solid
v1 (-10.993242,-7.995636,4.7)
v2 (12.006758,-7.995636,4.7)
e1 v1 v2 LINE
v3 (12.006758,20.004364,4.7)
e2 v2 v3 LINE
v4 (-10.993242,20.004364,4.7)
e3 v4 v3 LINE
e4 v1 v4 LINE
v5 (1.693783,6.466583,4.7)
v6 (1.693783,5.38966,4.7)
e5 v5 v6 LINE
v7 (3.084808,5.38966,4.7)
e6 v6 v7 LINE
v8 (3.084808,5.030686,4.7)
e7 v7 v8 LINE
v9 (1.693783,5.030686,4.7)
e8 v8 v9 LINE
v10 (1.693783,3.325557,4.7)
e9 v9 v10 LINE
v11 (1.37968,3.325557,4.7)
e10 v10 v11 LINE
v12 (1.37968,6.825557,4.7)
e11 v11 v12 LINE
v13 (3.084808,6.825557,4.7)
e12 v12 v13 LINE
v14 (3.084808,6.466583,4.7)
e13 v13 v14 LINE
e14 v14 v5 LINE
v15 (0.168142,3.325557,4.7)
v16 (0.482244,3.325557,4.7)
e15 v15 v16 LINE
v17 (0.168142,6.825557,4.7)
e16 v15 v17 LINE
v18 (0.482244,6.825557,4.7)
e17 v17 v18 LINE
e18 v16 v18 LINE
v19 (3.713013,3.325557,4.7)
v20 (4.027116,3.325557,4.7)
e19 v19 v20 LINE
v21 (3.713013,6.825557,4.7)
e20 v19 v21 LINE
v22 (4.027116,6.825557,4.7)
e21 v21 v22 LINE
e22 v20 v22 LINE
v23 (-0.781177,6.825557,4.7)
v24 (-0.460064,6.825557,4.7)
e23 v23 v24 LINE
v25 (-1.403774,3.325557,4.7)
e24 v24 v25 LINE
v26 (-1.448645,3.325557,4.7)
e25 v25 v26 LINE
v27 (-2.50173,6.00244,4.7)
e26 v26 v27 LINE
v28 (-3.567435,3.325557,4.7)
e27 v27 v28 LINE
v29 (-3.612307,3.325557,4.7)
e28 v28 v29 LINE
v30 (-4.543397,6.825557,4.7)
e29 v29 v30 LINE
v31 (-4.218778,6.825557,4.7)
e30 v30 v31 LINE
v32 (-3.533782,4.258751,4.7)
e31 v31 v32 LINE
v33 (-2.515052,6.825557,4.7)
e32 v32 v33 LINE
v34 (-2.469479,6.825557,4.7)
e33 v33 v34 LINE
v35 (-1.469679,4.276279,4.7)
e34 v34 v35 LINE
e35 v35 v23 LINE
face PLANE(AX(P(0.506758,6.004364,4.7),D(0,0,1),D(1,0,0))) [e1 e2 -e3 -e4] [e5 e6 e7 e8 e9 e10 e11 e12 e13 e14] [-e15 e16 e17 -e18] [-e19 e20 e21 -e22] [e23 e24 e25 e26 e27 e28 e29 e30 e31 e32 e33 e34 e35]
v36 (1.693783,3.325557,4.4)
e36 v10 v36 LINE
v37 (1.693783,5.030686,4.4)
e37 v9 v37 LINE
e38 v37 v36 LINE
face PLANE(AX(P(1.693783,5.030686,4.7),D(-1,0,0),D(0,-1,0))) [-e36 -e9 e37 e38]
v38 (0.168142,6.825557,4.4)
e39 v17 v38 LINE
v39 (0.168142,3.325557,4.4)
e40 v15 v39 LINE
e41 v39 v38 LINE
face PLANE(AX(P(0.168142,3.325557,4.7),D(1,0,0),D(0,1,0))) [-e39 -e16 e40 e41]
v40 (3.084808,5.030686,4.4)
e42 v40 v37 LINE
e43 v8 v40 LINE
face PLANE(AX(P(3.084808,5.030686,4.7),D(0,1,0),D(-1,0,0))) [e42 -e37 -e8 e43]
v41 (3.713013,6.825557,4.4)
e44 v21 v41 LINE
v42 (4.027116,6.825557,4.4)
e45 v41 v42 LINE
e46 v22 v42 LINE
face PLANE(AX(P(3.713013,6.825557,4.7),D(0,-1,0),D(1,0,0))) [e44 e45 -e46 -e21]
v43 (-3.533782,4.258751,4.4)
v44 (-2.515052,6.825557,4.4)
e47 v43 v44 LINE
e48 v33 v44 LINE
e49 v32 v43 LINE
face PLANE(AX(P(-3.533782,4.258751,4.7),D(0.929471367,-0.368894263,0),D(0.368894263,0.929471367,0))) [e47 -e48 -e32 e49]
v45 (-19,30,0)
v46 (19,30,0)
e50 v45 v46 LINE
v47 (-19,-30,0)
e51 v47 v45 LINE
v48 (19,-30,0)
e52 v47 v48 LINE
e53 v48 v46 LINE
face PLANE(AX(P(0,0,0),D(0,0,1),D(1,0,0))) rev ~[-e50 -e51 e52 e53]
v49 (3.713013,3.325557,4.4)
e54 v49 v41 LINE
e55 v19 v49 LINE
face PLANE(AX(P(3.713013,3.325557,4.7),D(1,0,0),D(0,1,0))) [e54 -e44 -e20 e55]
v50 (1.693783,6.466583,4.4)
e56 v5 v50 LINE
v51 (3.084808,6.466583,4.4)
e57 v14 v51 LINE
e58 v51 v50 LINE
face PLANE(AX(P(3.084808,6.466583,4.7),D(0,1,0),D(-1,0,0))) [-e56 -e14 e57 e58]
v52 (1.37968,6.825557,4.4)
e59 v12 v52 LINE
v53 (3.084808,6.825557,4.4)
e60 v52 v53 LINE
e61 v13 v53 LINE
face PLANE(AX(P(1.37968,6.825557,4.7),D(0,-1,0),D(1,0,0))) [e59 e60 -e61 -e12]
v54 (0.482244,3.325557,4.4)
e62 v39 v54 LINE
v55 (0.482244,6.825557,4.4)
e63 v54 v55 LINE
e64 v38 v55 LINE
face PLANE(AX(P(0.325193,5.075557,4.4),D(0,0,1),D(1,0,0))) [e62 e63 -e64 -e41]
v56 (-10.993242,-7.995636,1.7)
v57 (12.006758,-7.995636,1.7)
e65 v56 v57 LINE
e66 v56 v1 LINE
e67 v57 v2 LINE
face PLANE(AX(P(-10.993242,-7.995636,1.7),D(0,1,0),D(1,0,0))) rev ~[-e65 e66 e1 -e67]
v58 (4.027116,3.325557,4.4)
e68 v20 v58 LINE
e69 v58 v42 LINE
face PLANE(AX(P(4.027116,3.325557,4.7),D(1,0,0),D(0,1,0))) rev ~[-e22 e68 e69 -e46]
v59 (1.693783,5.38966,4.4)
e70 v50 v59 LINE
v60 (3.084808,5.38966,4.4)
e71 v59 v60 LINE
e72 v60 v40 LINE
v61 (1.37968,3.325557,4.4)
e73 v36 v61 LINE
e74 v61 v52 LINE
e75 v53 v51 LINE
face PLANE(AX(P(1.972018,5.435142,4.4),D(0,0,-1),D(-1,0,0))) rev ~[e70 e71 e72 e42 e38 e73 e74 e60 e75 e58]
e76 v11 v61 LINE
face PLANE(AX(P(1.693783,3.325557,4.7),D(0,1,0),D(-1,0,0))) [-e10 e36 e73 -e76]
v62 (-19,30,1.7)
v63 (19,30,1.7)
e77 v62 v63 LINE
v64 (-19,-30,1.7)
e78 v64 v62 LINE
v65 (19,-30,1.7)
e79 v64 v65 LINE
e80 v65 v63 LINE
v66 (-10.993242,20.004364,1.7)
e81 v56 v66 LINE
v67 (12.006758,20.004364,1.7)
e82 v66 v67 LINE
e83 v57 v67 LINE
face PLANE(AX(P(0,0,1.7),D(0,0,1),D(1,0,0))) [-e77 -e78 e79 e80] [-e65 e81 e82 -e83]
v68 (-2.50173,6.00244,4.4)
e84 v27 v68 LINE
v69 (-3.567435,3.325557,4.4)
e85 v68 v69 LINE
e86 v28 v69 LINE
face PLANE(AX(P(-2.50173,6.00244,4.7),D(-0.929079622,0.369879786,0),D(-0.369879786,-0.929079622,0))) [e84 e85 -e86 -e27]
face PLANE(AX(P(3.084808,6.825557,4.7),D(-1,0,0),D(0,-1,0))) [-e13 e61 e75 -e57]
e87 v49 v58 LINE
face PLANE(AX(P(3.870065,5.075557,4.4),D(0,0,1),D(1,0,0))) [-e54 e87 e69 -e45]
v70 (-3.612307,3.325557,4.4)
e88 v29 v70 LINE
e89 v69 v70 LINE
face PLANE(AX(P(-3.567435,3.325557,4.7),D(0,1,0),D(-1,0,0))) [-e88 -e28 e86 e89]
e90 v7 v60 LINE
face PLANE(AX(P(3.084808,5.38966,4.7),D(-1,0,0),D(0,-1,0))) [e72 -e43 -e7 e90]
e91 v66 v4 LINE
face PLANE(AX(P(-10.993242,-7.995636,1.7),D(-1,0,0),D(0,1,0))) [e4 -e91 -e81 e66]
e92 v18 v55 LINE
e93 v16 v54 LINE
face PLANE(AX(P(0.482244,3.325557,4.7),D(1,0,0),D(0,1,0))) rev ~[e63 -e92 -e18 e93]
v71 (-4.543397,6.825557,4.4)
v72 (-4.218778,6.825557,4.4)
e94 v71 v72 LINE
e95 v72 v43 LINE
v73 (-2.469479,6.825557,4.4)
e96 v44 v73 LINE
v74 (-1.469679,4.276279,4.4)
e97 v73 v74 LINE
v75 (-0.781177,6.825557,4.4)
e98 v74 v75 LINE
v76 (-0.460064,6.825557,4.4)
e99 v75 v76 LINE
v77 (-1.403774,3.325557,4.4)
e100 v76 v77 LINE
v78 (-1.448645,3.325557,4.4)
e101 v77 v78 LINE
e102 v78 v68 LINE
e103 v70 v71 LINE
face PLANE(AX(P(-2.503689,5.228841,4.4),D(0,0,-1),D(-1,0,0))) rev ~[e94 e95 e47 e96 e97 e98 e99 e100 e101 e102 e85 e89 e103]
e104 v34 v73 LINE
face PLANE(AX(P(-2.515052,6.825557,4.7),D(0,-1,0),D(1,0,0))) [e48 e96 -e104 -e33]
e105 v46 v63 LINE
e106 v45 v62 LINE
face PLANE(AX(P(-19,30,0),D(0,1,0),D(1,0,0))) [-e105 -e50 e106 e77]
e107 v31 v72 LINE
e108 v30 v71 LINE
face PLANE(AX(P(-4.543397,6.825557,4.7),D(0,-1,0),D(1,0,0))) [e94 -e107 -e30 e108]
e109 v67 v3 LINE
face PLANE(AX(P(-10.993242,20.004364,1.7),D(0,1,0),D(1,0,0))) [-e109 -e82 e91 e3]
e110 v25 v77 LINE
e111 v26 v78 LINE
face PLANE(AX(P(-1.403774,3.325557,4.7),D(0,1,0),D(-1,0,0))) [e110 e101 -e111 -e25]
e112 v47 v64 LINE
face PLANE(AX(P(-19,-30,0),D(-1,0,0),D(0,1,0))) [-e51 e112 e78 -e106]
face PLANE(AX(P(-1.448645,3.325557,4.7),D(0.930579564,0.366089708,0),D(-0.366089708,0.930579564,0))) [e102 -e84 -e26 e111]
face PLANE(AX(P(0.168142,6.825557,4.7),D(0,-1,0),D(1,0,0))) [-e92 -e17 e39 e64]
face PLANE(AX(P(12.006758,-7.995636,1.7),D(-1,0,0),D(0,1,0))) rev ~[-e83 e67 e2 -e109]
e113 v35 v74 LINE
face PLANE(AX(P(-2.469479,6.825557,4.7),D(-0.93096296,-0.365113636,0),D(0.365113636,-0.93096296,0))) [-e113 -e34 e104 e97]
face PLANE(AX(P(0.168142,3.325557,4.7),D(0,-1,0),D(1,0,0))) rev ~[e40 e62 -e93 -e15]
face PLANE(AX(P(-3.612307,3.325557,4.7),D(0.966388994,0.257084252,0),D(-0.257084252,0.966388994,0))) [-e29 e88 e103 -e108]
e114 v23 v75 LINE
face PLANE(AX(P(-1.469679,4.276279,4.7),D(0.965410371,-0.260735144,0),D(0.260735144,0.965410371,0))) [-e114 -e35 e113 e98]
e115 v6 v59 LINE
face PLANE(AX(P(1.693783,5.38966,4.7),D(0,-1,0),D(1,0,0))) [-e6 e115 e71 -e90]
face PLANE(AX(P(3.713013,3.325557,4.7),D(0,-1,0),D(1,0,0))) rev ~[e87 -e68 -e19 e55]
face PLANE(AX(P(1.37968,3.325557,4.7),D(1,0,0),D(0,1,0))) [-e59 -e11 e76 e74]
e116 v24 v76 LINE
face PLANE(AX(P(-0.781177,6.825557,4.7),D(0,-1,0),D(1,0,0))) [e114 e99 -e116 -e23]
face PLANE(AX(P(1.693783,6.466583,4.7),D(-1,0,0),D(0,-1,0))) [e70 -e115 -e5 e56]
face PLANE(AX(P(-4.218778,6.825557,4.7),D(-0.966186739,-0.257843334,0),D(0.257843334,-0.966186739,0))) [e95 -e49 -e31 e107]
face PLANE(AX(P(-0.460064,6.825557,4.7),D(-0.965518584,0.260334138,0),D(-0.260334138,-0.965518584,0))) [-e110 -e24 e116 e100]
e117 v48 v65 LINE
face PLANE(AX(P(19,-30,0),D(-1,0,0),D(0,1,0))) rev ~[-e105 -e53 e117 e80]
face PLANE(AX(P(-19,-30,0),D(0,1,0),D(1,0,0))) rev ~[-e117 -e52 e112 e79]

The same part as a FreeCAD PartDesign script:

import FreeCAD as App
import Part
import Sketcher
Q = App.Units.Quantity

doc = App.newDocument("Part")
body = doc.addObject("PartDesign::Body", "Body")

# Sketch on XY plane
sketch1 = doc.addObject("Sketcher::SketchObject", "Sketch")
body.addObject(sketch1)
sketch1.AttachmentSupport = (doc.XY_Plane, [""])
sketch1.MapMode = "FlatFace"
sketch1.addGeometry(Part.LineSegment(App.Vector(-19, 30, 0), App.Vector(-19, -30, 0)), False)
sketch1.addGeometry(Part.LineSegment(App.Vector(-19, -30, 0), App.Vector(19, -30, 0)), False)
sketch1.addGeometry(Part.LineSegment(App.Vector(19, -30, 0), App.Vector(19, 30, 0)), False)
sketch1.addGeometry(Part.LineSegment(App.Vector(19, 30, 0), App.Vector(-19, 30, 0)), False)
sketch1.addConstraint(Sketcher.Constraint("Coincident", 0, 2, 1, 1))
sketch1.addConstraint(Sketcher.Constraint("Coincident", 1, 2, 2, 1))
sketch1.addConstraint(Sketcher.Constraint("Coincident", 2, 2, 3, 1))
sketch1.addConstraint(Sketcher.Constraint("Coincident", 3, 2, 0, 1))
sketch1.addConstraint(Sketcher.Constraint("Vertical", 0))
sketch1.addConstraint(Sketcher.Constraint("Horizontal", 1))
sketch1.addConstraint(Sketcher.Constraint("Vertical", 2))
sketch1.addConstraint(Sketcher.Constraint("Horizontal", 3))
sketch1.addConstraint(Sketcher.Constraint("Symmetric", 0, 2, 2, 2, -1, 1))
sketch1.addConstraint(Sketcher.Constraint("DistanceX", 1, 1, 1, 2, Q("38 mm")))
sketch1.addConstraint(Sketcher.Constraint("DistanceY", 0, 2, 0, 1, Q("60 mm")))
pad1 = doc.addObject("PartDesign::Pad", "Pad")
body.addObject(pad1)
pad1.Profile = sketch1
pad1.Length = 1.7

# Sketch on XY plane
sketch2 = doc.addObject("Sketcher::SketchObject", "Sketch001")
body.addObject(sketch2)
sketch2.AttachmentSupport = (doc.XY_Plane, [""])
sketch2.MapMode = "FlatFace"
sketch2.AttachmentOffset = App.Placement(App.Vector(0, 0, 1.7), App.Rotation())
sketch2.addGeometry(Part.LineSegment(App.Vector(-11, 20, 0), App.Vector(-11, -8, 0)), False)
sketch2.addGeometry(Part.LineSegment(App.Vector(-11, -8, 0), App.Vector(12, -8, 0)), False)
sketch2.addGeometry(Part.LineSegment(App.Vector(12, -8, 0), App.Vector(12, 20, 0)), False)
sketch2.addGeometry(Part.LineSegment(App.Vector(12, 20, 0), App.Vector(-11, 20, 0)), False)
sketch2.addConstraint(Sketcher.Constraint("Coincident", 0, 2, 1, 1))
sketch2.addConstraint(Sketcher.Constraint("Coincident", 1, 2, 2, 1))
sketch2.addConstraint(Sketcher.Constraint("Coincident", 2, 2, 3, 1))
sketch2.addConstraint(Sketcher.Constraint("Coincident", 3, 2, 0, 1))
sketch2.addConstraint(Sketcher.Constraint("Vertical", 0))
sketch2.addConstraint(Sketcher.Constraint("Horizontal", 1))
sketch2.addConstraint(Sketcher.Constraint("Vertical", 2))
sketch2.addConstraint(Sketcher.Constraint("Horizontal", 3))
sketch2.addConstraint(Sketcher.Constraint("DistanceX", 1, 1, 1, 2, Q("23 mm")))
sketch2.addConstraint(Sketcher.Constraint("DistanceY", 0, 2, 0, 1, Q("28 mm")))
sketch2.addConstraint(Sketcher.Constraint("DistanceX", 0, 2, -1, 1, Q("10.993242 mm")))
sketch2.addConstraint(Sketcher.Constraint("DistanceY", 0, 2, -1, 1, Q("7.995636 mm")))
pad2 = doc.addObject("PartDesign::Pad", "Pad001")
body.addObject(pad2)
pad2.Profile = sketch2
pad2.Length = 3

# Sketch on XY plane
sketch3 = doc.addObject("Sketcher::SketchObject", "Sketch002")
body.addObject(sketch3)
sketch3.AttachmentSupport = (doc.XY_Plane, [""])
sketch3.MapMode = "FlatFace"
sketch3.AttachmentOffset = App.Placement(App.Vector(0, 0, 4.7), App.Rotation())
sketch3.addGeometry(Part.LineSegment(App.Vector(-4.219, 6.826, 0), App.Vector(-4.543, 6.826, 0)), False)
sketch3.addGeometry(Part.LineSegment(App.Vector(-4.543, 6.826, 0), App.Vector(-3.612, 3.326, 0)), False)
sketch3.addGeometry(Part.LineSegment(App.Vector(-3.612, 3.326, 0), App.Vector(-3.567, 3.326, 0)), False)
sketch3.addGeometry(Part.LineSegment(App.Vector(-3.567, 3.326, 0), App.Vector(-2.502, 6.002, 0)), False)
sketch3.addGeometry(Part.LineSegment(App.Vector(-2.502, 6.002, 0), App.Vector(-1.449, 3.326, 0)), False)
sketch3.addGeometry(Part.LineSegment(App.Vector(-1.449, 3.326, 0), App.Vector(-1.404, 3.326, 0)), False)
sketch3.addGeometry(Part.LineSegment(App.Vector(-1.404, 3.326, 0), App.Vector(-0.46, 6.826, 0)), False)
sketch3.addGeometry(Part.LineSegment(App.Vector(-0.46, 6.826, 0), App.Vector(-0.781, 6.826, 0)), False)
sketch3.addGeometry(Part.LineSegment(App.Vector(-0.781, 6.826, 0), App.Vector(-1.47, 4.276, 0)), False)
sketch3.addGeometry(Part.LineSegment(App.Vector(-1.47, 4.276, 0), App.Vector(-2.469, 6.826, 0)), False)
sketch3.addGeometry(Part.LineSegment(App.Vector(-2.469, 6.826, 0), App.Vector(-2.515, 6.826, 0)), False)
sketch3.addGeometry(Part.LineSegment(App.Vector(-2.515, 6.826, 0), App.Vector(-3.534, 4.259, 0)), False)
sketch3.addGeometry(Part.LineSegment(App.Vector(-3.534, 4.259, 0), App.Vector(-4.219, 6.826, 0)), False)
sketch3.addGeometry(Part.LineSegment(App.Vector(0.168, 6.826, 0), App.Vector(0.168, 3.326, 0)), False)
sketch3.addGeometry(Part.LineSegment(App.Vector(0.168, 3.326, 0), App.Vector(0.482, 3.326, 0)), False)
sketch3.addGeometry(Part.LineSegment(App.Vector(0.482, 3.326, 0), App.Vector(0.482, 6.826, 0)), False)
sketch3.addGeometry(Part.LineSegment(App.Vector(0.482, 6.826, 0), App.Vector(0.168, 6.826, 0)), False)
sketch3.addGeometry(Part.LineSegment(App.Vector(3.085, 6.826, 0), App.Vector(1.38, 6.826, 0)), False)
sketch3.addGeometry(Part.LineSegment(App.Vector(1.38, 6.826, 0), App.Vector(1.38, 3.326, 0)), False)
sketch3.addGeometry(Part.LineSegment(App.Vector(1.38, 3.326, 0), App.Vector(1.694, 3.326, 0)), False)
sketch3.addGeometry(Part.LineSegment(App.Vector(1.694, 3.326, 0), App.Vector(1.694, 5.031, 0)), False)
sketch3.addGeometry(Part.LineSegment(App.Vector(1.694, 5.031, 0), App.Vector(3.085, 5.031, 0)), False)
sketch3.addGeometry(Part.LineSegment(App.Vector(3.085, 5.031, 0), App.Vector(3.085, 5.39, 0)), False)
sketch3.addGeometry(Part.LineSegment(App.Vector(3.085, 5.39, 0), App.Vector(1.694, 5.39, 0)), False)
sketch3.addGeometry(Part.LineSegment(App.Vector(1.694, 5.39, 0), App.Vector(1.694, 6.467, 0)), False)
sketch3.addGeometry(Part.LineSegment(App.Vector(1.694, 6.467, 0), App.Vector(3.085, 6.467, 0)), False)
sketch3.addGeometry(Part.LineSegment(App.Vector(3.085, 6.467, 0), App.Vector(3.085, 6.826, 0)), False)
sketch3.addGeometry(Part.LineSegment(App.Vector(3.713, 6.826, 0), App.Vector(3.713, 3.326, 0)), False)
sketch3.addGeometry(Part.LineSegment(App.Vector(3.713, 3.326, 0), App.Vector(4.027, 3.326, 0)), False)
sketch3.addGeometry(Part.LineSegment(App.Vector(4.027, 3.326, 0), App.Vector(4.027, 6.826, 0)), False)
sketch3.addGeometry(Part.LineSegment(App.Vector(4.027, 6.826, 0), App.Vector(3.713, 6.826, 0)), False)
sketch3.addConstraint(Sketcher.Constraint("Coincident", 0, 2, 1, 1))
sketch3.addConstraint(Sketcher.Constraint("Coincident", 1, 2, 2, 1))
sketch3.addConstraint(Sketcher.Constraint("Coincident", 2, 2, 3, 1))
sketch3.addConstraint(Sketcher.Constraint("Coincident", 3, 2, 4, 1))
sketch3.addConstraint(Sketcher.Constraint("Coincident", 4, 2, 5, 1))
sketch3.addConstraint(Sketcher.Constraint("Coincident", 5, 2, 6, 1))
sketch3.addConstraint(Sketcher.Constraint("Coincident", 6, 2, 7, 1))
sketch3.addConstraint(Sketcher.Constraint("Coincident", 7, 2, 8, 1))
sketch3.addConstraint(Sketcher.Constraint("Coincident", 8, 2, 9, 1))
sketch3.addConstraint(Sketcher.Constraint("Coincident", 9, 2, 10, 1))
sketch3.addConstraint(Sketcher.Constraint("Coincident", 10, 2, 11, 1))
sketch3.addConstraint(Sketcher.Constraint("Coincident", 11, 2, 12, 1))
sketch3.addConstraint(Sketcher.Constraint("Coincident", 12, 2, 0, 1))
sketch3.addConstraint(Sketcher.Constraint("Coincident", 13, 2, 14, 1))
sketch3.addConstraint(Sketcher.Constraint("Coincident", 14, 2, 15, 1))
sketch3.addConstraint(Sketcher.Constraint("Coincident", 15, 2, 16, 1))
sketch3.addConstraint(Sketcher.Constraint("Coincident", 16, 2, 13, 1))
sketch3.addConstraint(Sketcher.Constraint("Coincident", 17, 2, 18, 1))
sketch3.addConstraint(Sketcher.Constraint("Coincident", 18, 2, 19, 1))
sketch3.addConstraint(Sketcher.Constraint("Coincident", 19, 2, 20, 1))
sketch3.addConstraint(Sketcher.Constraint("Coincident", 20, 2, 21, 1))
sketch3.addConstraint(Sketcher.Constraint("Coincident", 21, 2, 22, 1))
sketch3.addConstraint(Sketcher.Constraint("Coincident", 22, 2, 23, 1))
sketch3.addConstraint(Sketcher.Constraint("Coincident", 23, 2, 24, 1))
sketch3.addConstraint(Sketcher.Constraint("Coincident", 24, 2, 25, 1))
sketch3.addConstraint(Sketcher.Constraint("Coincident", 25, 2, 26, 1))
sketch3.addConstraint(Sketcher.Constraint("Coincident", 26, 2, 17, 1))
sketch3.addConstraint(Sketcher.Constraint("Coincident", 27, 2, 28, 1))
sketch3.addConstraint(Sketcher.Constraint("Coincident", 28, 2, 29, 1))
sketch3.addConstraint(Sketcher.Constraint("Coincident", 29, 2, 30, 1))
sketch3.addConstraint(Sketcher.Constraint("Coincident", 30, 2, 27, 1))
sketch3.addConstraint(Sketcher.Constraint("Horizontal", 0))
sketch3.addConstraint(Sketcher.Constraint("Horizontal", 2))
sketch3.addConstraint(Sketcher.Constraint("Horizontal", 5))
sketch3.addConstraint(Sketcher.Constraint("Horizontal", 7))
sketch3.addConstraint(Sketcher.Constraint("Horizontal", 10))
sketch3.addConstraint(Sketcher.Constraint("Vertical", 13))
sketch3.addConstraint(Sketcher.Constraint("Horizontal", 14))
sketch3.addConstraint(Sketcher.Constraint("Vertical", 15))
sketch3.addConstraint(Sketcher.Constraint("Horizontal", 16))
sketch3.addConstraint(Sketcher.Constraint("Horizontal", 17))
sketch3.addConstraint(Sketcher.Constraint("Vertical", 18))
sketch3.addConstraint(Sketcher.Constraint("Horizontal", 19))
sketch3.addConstraint(Sketcher.Constraint("Vertical", 20))
sketch3.addConstraint(Sketcher.Constraint("Horizontal", 21))
sketch3.addConstraint(Sketcher.Constraint("Vertical", 22))
sketch3.addConstraint(Sketcher.Constraint("Horizontal", 23))
sketch3.addConstraint(Sketcher.Constraint("Vertical", 24))
sketch3.addConstraint(Sketcher.Constraint("Horizontal", 25))
sketch3.addConstraint(Sketcher.Constraint("Vertical", 26))
sketch3.addConstraint(Sketcher.Constraint("Vertical", 27))
sketch3.addConstraint(Sketcher.Constraint("Horizontal", 28))
sketch3.addConstraint(Sketcher.Constraint("Vertical", 29))
sketch3.addConstraint(Sketcher.Constraint("Horizontal", 30))
sketch3.addConstraint(Sketcher.Constraint("Horizontal", 2, 2, 4, 2))
sketch3.addConstraint(Sketcher.Constraint("Horizontal", 0, 2, 6, 2))
sketch3.addConstraint(Sketcher.Constraint("Horizontal", 7, 2, 9, 2))
sketch3.addConstraint(Sketcher.Constraint("Horizontal", 5, 2, 13, 2))
sketch3.addConstraint(Sketcher.Constraint("Horizontal", 12, 2, 15, 2))
sketch3.addConstraint(Sketcher.Constraint("Horizontal", 16, 2, 17, 2))
sketch3.addConstraint(Sketcher.Constraint("Horizontal", 14, 2, 18, 2))
sketch3.addConstraint(Sketcher.Constraint("Horizontal", 19, 2, 27, 2))
sketch3.addConstraint(Sketcher.Constraint("Horizontal", 26, 2, 29, 2))
sketch3.addConstraint(Sketcher.Constraint("Vertical", 20, 2, 23, 2))
sketch3.addConstraint(Sketcher.Constraint("Vertical", 22, 2, 25, 2))
sketch3.addConstraint(Sketcher.Constraint("Equal", 2, 5))
sketch3.addConstraint(Sketcher.Constraint("Equal", 16, 19))
sketch3.addConstraint(Sketcher.Constraint("Equal", 19, 28))
sketch3.addConstraint(Sketcher.Constraint("Equal", 17, 20))
sketch3.addConstraint(Sketcher.Constraint("Equal", 22, 26))
sketch3.addConstraint(Sketcher.Constraint("DistanceY", 13, 2, 13, 1, Q("3.5 mm")))
sketch3.addConstraint(Sketcher.Constraint("DistanceX", 0, 2, 0, 1, Q("0.324619 mm")))
sketch3.addConstraint(Sketcher.Constraint("DistanceX", 2, 1, 2, 2, Q("0.044872 mm")))
sketch3.addConstraint(Sketcher.Constraint("DistanceX", 17, 2, 17, 1, Q("1.705128 mm")))
sketch3.addConstraint(Sketcher.Constraint("DistanceX", 9, 2, 7, 2, Q("1.688301 mm")))
sketch3.addConstraint(Sketcher.Constraint("DistanceX", 9, 2, 8, 2, Q("0.9998 mm")))
sketch3.addConstraint(Sketcher.Constraint("DistanceX", 12, 2, 9, 2, Q("1.749299 mm")))
sketch3.addConstraint(Sketcher.Constraint("Distance", 1, Q("3.62173 mm")))
sketch3.addConstraint(Sketcher.Constraint("Distance", 3, Q("2.88122 mm")))
sketch3.addConstraint(Sketcher.Constraint("DistanceX", 7, 2, 7, 1, Q("0.321114 mm")))
sketch3.addConstraint(Sketcher.Constraint("DistanceX", 10, 2, 10, 1, Q("0.045573 mm")))
sketch3.addConstraint(Sketcher.Constraint("DistanceX", 14, 1, 14, 2, Q("0.314103 mm")))
sketch3.addConstraint(Sketcher.Constraint("DistanceY", 22, 1, 22, 2, Q("0.358974 mm")))
sketch3.addConstraint(Sketcher.Constraint("DistanceX", 3, 2, -1, 1, Q("2.50173 mm")))
sketch3.addConstraint(Sketcher.Constraint("DistanceY", -1, 1, 3, 2, Q("6.00244 mm")))
sketch3.addConstraint(Sketcher.Constraint("DistanceX", 8, 2, -1, 1, Q("1.469679 mm")))
sketch3.addConstraint(Sketcher.Constraint("DistanceY", -1, 1, 8, 2, Q("4.276279 mm")))
sketch3.addConstraint(Sketcher.Constraint("DistanceX", 11, 2, -1, 1, Q("3.533782 mm")))
sketch3.addConstraint(Sketcher.Constraint("DistanceY", -1, 1, 11, 2, Q("4.258751 mm")))
sketch3.addConstraint(Sketcher.Constraint("DistanceX", -1, 1, 13, 2, Q("0.168142 mm")))
sketch3.addConstraint(Sketcher.Constraint("DistanceX", -1, 1, 17, 2, Q("1.37968 mm")))
sketch3.addConstraint(Sketcher.Constraint("DistanceX", 2, 2, 4, 2, Q("2.11879 mm")))
sketch3.addConstraint(Sketcher.Constraint("DistanceX", 19, 2, 27, 2, Q("2.019231 mm")))
pocket1 = doc.addObject("PartDesign::Pocket", "Pocket")
body.addObject(pocket1)
pocket1.Profile = sketch3
pocket1.Length = 0.3

doc.recompute()
